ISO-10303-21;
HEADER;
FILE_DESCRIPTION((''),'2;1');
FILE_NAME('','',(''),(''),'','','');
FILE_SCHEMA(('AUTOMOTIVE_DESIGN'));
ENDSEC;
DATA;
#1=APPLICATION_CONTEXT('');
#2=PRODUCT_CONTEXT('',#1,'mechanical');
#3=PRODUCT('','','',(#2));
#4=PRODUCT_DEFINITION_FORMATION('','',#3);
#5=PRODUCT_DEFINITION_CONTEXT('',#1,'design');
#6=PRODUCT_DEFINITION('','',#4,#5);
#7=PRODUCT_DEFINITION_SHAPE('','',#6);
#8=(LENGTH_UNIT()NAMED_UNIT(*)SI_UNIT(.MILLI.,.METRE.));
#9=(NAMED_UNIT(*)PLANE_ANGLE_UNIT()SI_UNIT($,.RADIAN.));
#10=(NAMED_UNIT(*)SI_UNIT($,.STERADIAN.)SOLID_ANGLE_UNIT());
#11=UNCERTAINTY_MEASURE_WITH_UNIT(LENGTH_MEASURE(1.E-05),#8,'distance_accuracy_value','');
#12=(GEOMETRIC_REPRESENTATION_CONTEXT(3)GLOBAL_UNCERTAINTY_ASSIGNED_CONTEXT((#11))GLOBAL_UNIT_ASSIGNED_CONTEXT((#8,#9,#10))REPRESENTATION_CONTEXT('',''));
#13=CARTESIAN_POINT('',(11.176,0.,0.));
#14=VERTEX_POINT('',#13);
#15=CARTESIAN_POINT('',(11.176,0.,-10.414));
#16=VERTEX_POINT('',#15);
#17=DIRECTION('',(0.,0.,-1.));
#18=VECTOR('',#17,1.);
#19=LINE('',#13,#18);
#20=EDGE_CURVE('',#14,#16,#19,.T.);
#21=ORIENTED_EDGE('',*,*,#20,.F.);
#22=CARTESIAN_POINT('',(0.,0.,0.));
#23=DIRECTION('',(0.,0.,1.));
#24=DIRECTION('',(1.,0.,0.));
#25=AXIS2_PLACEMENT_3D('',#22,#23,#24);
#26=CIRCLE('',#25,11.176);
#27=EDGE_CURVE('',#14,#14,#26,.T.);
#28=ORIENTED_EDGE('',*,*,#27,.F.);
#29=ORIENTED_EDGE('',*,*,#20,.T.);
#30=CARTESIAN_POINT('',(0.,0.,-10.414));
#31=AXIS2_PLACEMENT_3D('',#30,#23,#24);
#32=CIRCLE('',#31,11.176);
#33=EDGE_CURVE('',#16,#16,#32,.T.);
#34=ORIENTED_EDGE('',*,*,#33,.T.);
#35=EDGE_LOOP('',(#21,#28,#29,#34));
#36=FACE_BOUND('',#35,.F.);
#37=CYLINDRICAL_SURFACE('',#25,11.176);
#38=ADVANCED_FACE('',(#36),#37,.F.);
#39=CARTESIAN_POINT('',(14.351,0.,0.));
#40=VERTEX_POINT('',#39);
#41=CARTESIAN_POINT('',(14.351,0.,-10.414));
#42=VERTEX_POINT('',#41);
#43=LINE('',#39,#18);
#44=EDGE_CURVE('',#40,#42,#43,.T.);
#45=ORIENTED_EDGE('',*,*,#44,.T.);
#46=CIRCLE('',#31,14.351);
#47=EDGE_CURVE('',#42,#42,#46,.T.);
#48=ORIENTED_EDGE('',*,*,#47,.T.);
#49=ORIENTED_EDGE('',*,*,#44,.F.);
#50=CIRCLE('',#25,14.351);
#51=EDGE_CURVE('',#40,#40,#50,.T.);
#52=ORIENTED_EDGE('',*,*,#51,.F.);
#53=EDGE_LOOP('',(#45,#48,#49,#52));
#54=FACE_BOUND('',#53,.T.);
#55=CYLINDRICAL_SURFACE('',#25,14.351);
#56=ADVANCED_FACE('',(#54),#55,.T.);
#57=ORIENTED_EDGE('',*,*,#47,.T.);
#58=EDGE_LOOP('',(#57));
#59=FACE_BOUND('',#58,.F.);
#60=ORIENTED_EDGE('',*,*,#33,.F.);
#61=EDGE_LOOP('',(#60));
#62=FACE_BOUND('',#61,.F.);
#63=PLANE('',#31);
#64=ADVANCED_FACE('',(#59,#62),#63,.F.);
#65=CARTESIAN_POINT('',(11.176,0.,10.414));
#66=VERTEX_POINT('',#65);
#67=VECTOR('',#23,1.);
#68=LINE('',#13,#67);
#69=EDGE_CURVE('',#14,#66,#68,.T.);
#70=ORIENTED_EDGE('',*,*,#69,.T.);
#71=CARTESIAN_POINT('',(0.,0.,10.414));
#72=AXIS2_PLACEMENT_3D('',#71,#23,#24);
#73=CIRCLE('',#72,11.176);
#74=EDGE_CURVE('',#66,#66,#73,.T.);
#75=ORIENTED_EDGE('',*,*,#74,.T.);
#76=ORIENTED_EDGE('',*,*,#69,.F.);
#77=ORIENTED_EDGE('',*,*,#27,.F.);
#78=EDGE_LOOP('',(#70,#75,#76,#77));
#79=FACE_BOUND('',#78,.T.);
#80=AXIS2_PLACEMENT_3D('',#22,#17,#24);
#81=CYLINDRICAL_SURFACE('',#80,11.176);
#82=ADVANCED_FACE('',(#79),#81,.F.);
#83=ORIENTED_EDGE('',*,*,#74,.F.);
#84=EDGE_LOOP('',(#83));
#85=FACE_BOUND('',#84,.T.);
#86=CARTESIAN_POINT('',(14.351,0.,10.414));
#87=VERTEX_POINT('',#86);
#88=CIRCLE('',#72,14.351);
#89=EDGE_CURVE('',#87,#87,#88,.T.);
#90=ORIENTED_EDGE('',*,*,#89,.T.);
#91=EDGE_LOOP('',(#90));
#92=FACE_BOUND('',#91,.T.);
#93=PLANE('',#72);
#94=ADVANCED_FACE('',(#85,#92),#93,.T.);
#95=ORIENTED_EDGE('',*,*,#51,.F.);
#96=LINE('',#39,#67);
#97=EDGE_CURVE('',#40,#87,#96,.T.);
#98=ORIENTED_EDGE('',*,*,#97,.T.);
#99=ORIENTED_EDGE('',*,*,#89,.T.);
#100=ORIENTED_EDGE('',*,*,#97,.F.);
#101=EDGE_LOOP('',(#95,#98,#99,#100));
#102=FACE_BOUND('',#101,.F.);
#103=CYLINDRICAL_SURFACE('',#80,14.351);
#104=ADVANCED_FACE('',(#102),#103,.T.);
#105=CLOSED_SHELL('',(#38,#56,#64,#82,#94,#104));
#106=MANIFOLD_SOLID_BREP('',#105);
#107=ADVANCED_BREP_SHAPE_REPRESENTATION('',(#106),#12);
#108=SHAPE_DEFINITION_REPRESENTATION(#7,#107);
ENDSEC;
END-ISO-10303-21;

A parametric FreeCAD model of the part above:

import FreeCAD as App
import Part
import Sketcher
Q = App.Units.Quantity

doc = App.newDocument("Part")
body = doc.addObject("PartDesign::Body", "Body")

# Sketch on XY plane
sketch1 = doc.addObject("Sketcher::SketchObject", "Sketch")
body.addObject(sketch1)
sketch1.AttachmentSupport = (doc.XY_Plane, [""])
sketch1.MapMode = "FlatFace"
sketch1.addGeometry([
    Part.Circle(App.Vector(0, 0, 0), App.Vector(0, 0, 1), 14),
    Part.Circle(App.Vector(0, 0, 0), App.Vector(0, 0, 1), 11),
], False)
sketch1.addConstraint([
    Sketcher.Constraint("Coincident", 0, 3, -1, 1),
    Sketcher.Constraint("Coincident", 1, 3, -1, 1),
    Sketcher.Constraint("Diameter", 1, Q("0.88 in")),
    Sketcher.Constraint("Diameter", 0, Q("1.13 in")),
])
pad1 = doc.addObject("PartDesign::Pad", "Pad")
body.addObject(pad1)
pad1.Profile = sketch1
pad1.Length = Q("0.82 in")
pad1.Midplane = True

doc.recompute()
